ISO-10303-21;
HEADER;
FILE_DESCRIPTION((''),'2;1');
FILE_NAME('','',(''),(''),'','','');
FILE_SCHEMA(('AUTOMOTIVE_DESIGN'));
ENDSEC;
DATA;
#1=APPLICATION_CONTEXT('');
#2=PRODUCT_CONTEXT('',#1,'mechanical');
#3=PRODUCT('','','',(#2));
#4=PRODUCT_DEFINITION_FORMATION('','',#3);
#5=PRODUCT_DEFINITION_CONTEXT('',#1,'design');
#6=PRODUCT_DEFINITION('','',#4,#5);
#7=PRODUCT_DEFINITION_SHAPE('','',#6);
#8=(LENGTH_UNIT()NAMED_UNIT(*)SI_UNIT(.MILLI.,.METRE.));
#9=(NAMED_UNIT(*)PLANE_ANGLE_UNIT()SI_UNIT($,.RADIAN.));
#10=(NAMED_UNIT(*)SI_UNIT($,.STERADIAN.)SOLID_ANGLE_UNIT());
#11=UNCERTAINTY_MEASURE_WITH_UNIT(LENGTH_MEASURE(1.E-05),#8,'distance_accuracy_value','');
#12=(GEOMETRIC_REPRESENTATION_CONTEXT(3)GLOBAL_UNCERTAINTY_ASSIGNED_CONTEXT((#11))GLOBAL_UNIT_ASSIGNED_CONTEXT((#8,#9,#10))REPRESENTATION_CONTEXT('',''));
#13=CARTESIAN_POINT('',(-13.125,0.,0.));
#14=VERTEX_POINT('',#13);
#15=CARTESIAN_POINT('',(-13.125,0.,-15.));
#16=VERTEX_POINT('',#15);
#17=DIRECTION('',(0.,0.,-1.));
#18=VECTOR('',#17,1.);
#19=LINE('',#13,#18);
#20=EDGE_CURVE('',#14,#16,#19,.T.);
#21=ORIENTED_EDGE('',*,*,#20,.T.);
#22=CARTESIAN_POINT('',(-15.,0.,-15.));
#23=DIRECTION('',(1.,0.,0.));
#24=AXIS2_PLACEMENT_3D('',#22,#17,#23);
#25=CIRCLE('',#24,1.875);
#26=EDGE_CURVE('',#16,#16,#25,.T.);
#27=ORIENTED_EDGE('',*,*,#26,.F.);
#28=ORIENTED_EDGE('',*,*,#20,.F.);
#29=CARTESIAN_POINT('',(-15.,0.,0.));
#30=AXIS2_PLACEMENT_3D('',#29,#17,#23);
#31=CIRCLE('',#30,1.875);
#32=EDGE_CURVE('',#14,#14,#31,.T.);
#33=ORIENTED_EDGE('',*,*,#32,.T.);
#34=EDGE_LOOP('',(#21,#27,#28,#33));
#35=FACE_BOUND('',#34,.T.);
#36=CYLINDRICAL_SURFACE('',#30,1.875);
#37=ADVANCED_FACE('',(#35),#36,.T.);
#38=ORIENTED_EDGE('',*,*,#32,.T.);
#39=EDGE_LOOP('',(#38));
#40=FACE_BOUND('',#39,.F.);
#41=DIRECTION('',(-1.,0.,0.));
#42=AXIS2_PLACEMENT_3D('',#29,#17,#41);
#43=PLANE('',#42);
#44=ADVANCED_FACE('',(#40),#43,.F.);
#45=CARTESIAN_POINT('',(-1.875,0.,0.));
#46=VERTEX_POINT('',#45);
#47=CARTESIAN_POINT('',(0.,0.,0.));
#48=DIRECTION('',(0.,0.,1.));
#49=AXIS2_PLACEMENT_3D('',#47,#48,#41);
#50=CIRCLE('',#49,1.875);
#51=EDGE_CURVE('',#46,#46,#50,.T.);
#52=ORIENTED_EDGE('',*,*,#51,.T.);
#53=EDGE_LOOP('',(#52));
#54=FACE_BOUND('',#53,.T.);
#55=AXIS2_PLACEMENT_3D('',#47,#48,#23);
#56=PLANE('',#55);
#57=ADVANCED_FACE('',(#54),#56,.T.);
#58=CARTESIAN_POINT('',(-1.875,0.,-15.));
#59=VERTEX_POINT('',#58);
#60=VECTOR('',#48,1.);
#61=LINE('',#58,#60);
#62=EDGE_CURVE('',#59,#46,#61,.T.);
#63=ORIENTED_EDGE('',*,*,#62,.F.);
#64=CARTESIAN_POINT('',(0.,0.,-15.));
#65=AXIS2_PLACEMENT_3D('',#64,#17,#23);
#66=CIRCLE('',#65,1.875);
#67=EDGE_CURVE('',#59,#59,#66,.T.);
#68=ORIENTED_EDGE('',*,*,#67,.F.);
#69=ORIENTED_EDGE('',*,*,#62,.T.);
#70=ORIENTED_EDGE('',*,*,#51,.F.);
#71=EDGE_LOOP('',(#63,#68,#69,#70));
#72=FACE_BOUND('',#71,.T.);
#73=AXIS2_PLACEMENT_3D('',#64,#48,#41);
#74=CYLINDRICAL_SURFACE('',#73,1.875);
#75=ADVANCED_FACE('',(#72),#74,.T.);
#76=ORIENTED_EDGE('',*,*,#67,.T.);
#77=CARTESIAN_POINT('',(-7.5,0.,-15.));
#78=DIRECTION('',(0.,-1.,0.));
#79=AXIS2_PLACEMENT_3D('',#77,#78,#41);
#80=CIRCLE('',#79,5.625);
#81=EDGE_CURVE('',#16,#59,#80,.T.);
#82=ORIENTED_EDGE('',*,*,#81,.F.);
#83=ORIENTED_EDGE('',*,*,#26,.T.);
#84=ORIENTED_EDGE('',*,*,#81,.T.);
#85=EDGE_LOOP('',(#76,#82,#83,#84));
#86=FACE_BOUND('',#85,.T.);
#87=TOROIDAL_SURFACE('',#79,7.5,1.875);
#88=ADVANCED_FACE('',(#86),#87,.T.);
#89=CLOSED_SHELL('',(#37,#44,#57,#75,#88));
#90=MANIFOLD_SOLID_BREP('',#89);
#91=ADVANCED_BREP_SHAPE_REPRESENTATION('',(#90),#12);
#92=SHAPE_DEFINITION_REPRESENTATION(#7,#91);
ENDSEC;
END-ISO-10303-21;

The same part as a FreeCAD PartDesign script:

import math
import FreeCAD as App
import Part
import Sketcher
from FreeCAD import Vector

doc = App.newDocument("Part")
body = doc.addObject("PartDesign::Body", "Body")

# Sketch on XY plane
sketch1 = body.newObject("Sketcher::SketchObject", "Sketch")
sketch1.AttachmentSupport = (doc.getObject("XY_Plane"), [""])
sketch1.MapMode = "FlatFace"
sketch1.addGeometry(Part.Circle(Vector(-15, 0, 0), Vector(0, 0, 1), 1.9), False)
sketch1.addConstraint([
    Sketcher.Constraint("PointOnObject", 0, 3, -1),
    Sketcher.Constraint("Diameter", 0, 3.75),
    Sketcher.Constraint("DistanceX", 0, 3, -1, 1, 15.0),
])

# Sketch on XZ plane
sketch2 = body.newObject("Sketcher::SketchObject", "Sketch001")
sketch2.AttachmentSupport = (doc.getObject("XZ_Plane"), [""])
sketch2.MapMode = "FlatFace"
sketch2.addGeometry([
    Part.LineSegment(Vector(-15, 0, 0), Vector(-15, -15, 0)),
    Part.ArcOfCircle(Part.Circle(Vector(-8, -15, 0), Vector(0, 0, 1), 8), math.radians(180), math.radians(360)),
    Part.LineSegment(Vector(0, -15, 0), Vector(0, 0, 0)),
], False)
sketch2.addConstraint([
    Sketcher.Constraint("Tangent", 0, 2, 1, 1),
    Sketcher.Constraint("Tangent", 1, 2, 2, 1),
    Sketcher.Constraint("Vertical", 0),
    Sketcher.Constraint("Vertical", 2),
    Sketcher.Constraint("Coincident", 2, 2, -1, 1),
    Sketcher.Constraint("PointOnObject", 0, 1, -1),
    Sketcher.Constraint("Radius", 1, 7.5),
    Sketcher.Constraint("DistanceY", 0, 2, 0, 1, 15.0),
])
doc.recompute()

additivepipe = body.newObject("PartDesign::AdditivePipe", "AdditivePipe")
additivepipe.Profile = sketch1
additivepipe.Spine = (sketch2, ["Edge1", "Edge2", "Edge3"])

doc.recompute()
